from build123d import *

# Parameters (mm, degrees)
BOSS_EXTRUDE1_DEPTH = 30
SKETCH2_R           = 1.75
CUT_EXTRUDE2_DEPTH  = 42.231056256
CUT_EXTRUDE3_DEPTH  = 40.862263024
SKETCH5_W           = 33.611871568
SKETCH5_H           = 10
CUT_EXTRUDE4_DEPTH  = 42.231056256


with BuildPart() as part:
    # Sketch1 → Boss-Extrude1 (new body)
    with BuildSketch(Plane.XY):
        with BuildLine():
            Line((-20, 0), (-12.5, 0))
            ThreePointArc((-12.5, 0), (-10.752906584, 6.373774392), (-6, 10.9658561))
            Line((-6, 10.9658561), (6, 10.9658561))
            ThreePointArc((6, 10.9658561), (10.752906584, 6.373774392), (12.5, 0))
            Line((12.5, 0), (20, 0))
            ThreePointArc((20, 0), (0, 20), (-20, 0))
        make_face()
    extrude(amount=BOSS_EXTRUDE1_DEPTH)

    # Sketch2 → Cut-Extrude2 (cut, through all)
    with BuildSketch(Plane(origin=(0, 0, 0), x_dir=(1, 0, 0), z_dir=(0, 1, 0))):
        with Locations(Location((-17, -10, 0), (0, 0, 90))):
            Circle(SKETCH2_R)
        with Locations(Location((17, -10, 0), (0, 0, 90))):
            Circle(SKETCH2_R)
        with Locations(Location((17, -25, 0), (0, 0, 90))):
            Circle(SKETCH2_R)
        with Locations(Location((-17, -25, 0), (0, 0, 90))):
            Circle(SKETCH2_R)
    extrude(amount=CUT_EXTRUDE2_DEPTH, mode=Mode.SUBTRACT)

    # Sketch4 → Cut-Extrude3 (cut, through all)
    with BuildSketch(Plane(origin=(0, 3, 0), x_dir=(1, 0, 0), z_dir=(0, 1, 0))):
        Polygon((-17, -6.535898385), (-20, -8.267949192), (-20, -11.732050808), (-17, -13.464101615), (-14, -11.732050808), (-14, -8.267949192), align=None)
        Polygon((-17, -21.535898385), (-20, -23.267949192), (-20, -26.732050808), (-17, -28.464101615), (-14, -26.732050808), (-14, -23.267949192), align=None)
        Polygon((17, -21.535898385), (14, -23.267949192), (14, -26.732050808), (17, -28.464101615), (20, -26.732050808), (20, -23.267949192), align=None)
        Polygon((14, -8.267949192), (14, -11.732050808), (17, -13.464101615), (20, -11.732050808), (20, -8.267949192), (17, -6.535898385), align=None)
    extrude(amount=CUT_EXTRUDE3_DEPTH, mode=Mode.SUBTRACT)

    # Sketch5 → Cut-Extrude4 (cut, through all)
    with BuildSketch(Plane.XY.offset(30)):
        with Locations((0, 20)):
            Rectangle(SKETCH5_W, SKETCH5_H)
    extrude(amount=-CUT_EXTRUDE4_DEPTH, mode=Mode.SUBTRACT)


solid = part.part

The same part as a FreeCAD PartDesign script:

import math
import FreeCAD as App
import Part
import Sketcher

V = App.Vector
Q = App.Units.Quantity

doc = App.newDocument("Part")
body = doc.addObject("PartDesign::Body", "Body")

sketch1 = body.newObject("Sketcher::SketchObject", "Sketch")
sketch1.AttachmentSupport = (doc.getObject("XY_Plane"), [""])
sketch1.MapMode = "FlatFace"
sketch1.addGeometry(Part.LineSegment(V(-20, 0, 0), V(-12, 0, 0)), False)
sketch1.addGeometry(Part.ArcOfCircle(Part.Circle(V(0, 0, 0), V(0, 0, 1), 12), math.radians(119), math.radians(180)), False)
sketch1.addGeometry(Part.LineSegment(V(-6, 11, 0), V(6, 11, 0)), False)
sketch1.addGeometry(Part.ArcOfCircle(Part.Circle(V(0, 0, 0), V(0, 0, 1), 12), math.radians(0), math.radians(61)), False)
sketch1.addGeometry(Part.LineSegment(V(12, 0, 0), V(20, 0, 0)), False)
sketch1.addGeometry(Part.ArcOfCircle(Part.Circle(V(0, 0, 0), V(0, 0, 1), 20), math.radians(0), math.radians(180)), False)
sketch1.addConstraint(Sketcher.Constraint("Coincident", 0, 2, 1, 2))
sketch1.addConstraint(Sketcher.Constraint("Coincident", 1, 1, 2, 1))
sketch1.addConstraint(Sketcher.Constraint("Coincident", 2, 2, 3, 2))
sketch1.addConstraint(Sketcher.Constraint("Coincident", 3, 1, 4, 1))
sketch1.addConstraint(Sketcher.Constraint("Coincident", 4, 2, 5, 1))
sketch1.addConstraint(Sketcher.Constraint("Coincident", 5, 2, 0, 1))
sketch1.addConstraint(Sketcher.Constraint("Horizontal", 0))
sketch1.addConstraint(Sketcher.Constraint("Horizontal", 2))
sketch1.addConstraint(Sketcher.Constraint("Horizontal", 4))
sketch1.addConstraint(Sketcher.Constraint("Coincident", 1, 3, -1, 1))
sketch1.addConstraint(Sketcher.Constraint("Coincident", 3, 3, -1, 1))
sketch1.addConstraint(Sketcher.Constraint("Coincident", 5, 3, -1, 1))
sketch1.addConstraint(Sketcher.Constraint("Equal", 1, 3))
sketch1.addConstraint(Sketcher.Constraint("PointOnObject", 0, 2, -1))
sketch1.addConstraint(Sketcher.Constraint("PointOnObject", 3, 1, -1))
sketch1.addConstraint(Sketcher.Constraint("Radius", 5, Q("20 mm")))
sketch1.addConstraint(Sketcher.Constraint("Radius", 1, Q("12.5 mm")))
sketch1.addConstraint(Sketcher.Constraint("DistanceX", 2, 1, 2, 2, Q("12 mm")))
pad1 = body.newObject("PartDesign::Pad", "Pad")
pad1.Profile = sketch1
pad1.Length = 30

sketch2 = body.newObject("Sketcher::SketchObject", "Sketch001")
sketch2.AttachmentSupport = (doc.getObject("XZ_Plane"), [""])
sketch2.MapMode = "FlatFace"
sketch2.addGeometry(Part.Circle(V(-17, 10, 0), V(0, 0, 1), 1.8), False)
sketch2.addGeometry(Part.Circle(V(17, 10, 0), V(0, 0, 1), 1.8), False)
sketch2.addGeometry(Part.Circle(V(17, 25, 0), V(0, 0, 1), 1.8), False)
sketch2.addGeometry(Part.Circle(V(-17, 25, 0), V(0, 0, 1), 1.8), False)
sketch2.addConstraint(Sketcher.Constraint("Equal", 0, 1))
sketch2.addConstraint(Sketcher.Constraint("Equal", 1, 2))
sketch2.addConstraint(Sketcher.Constraint("Equal", 2, 3))
sketch2.addConstraint(Sketcher.Constraint("Symmetric", 0, 3, 1, 3, -2))
sketch2.addConstraint(Sketcher.Constraint("Symmetric", 2, 3, 3, 3, -2))
sketch2.addConstraint(Sketcher.Constraint("Vertical", 1, 3, 2, 3))
sketch2.addConstraint(Sketcher.Constraint("Diameter", 0, Q("3.5 mm")))
sketch2.addConstraint(Sketcher.Constraint("DistanceX", 0, 3, -1, 1, Q("17 mm")))
sketch2.addConstraint(Sketcher.Constraint("DistanceY", -1, 1, 0, 3, Q("10 mm")))
sketch2.addConstraint(Sketcher.Constraint("DistanceY", -1, 1, 2, 3, Q("25 mm")))
pocket1 = body.newObject("PartDesign::Pocket", "Pocket")
pocket1.Profile = sketch2
pocket1.Type = "ThroughAll"

sketch3 = body.newObject("Sketcher::SketchObject", "Sketch002")
sketch3.AttachmentSupport = (doc.getObject("XZ_Plane"), [""])
sketch3.MapMode = "FlatFace"
sketch3.AttachmentOffset = App.Placement(V(0, 0, -3), App.Rotation())
sketch3.addGeometry(Part.LineSegment(V(-17, 6.5, 0), V(-20, 8.3, 0)), False)
sketch3.addGeometry(Part.LineSegment(V(-20, 8.3, 0), V(-20, 11.7, 0)), False)
sketch3.addGeometry(Part.LineSegment(V(-20, 11.7, 0), V(-17, 13.5, 0)), False)
sketch3.addGeometry(Part.LineSegment(V(-17, 13.5, 0), V(-14, 11.7, 0)), False)
sketch3.addGeometry(Part.LineSegment(V(-14, 11.7, 0), V(-14, 8.3, 0)), False)
sketch3.addGeometry(Part.LineSegment(V(-14, 8.3, 0), V(-17, 6.5, 0)), False)
sketch3.addGeometry(Part.LineSegment(V(-17, 21.5, 0), V(-20, 23.3, 0)), False)
sketch3.addGeometry(Part.LineSegment(V(-20, 23.3, 0), V(-20, 26.7, 0)), False)
sketch3.addGeometry(Part.LineSegment(V(-20, 26.7, 0), V(-17, 28.5, 0)), False)
sketch3.addGeometry(Part.LineSegment(V(-17, 28.5, 0), V(-14, 26.7, 0)), False)
sketch3.addGeometry(Part.LineSegment(V(-14, 26.7, 0), V(-14, 23.3, 0)), False)
sketch3.addGeometry(Part.LineSegment(V(-14, 23.3, 0), V(-17, 21.5, 0)), False)
sketch3.addGeometry(Part.LineSegment(V(17, 21.5, 0), V(14, 23.3, 0)), False)
sketch3.addGeometry(Part.LineSegment(V(14, 23.3, 0), V(14, 26.7, 0)), False)
sketch3.addGeometry(Part.LineSegment(V(14, 26.7, 0), V(17, 28.5, 0)), False)
sketch3.addGeometry(Part.LineSegment(V(17, 28.5, 0), V(20, 26.7, 0)), False)
sketch3.addGeometry(Part.LineSegment(V(20, 26.7, 0), V(20, 23.3, 0)), False)
sketch3.addGeometry(Part.LineSegment(V(20, 23.3, 0), V(17, 21.5, 0)), False)
sketch3.addGeometry(Part.LineSegment(V(14, 8.3, 0), V(14, 11.7, 0)), False)
sketch3.addGeometry(Part.LineSegment(V(14, 11.7, 0), V(17, 13.5, 0)), False)
sketch3.addGeometry(Part.LineSegment(V(17, 13.5, 0), V(20, 11.7, 0)), False)
sketch3.addGeometry(Part.LineSegment(V(20, 11.7, 0), V(20, 8.3, 0)), False)
sketch3.addGeometry(Part.LineSegment(V(20, 8.3, 0), V(17, 6.5, 0)), False)
sketch3.addGeometry(Part.LineSegment(V(17, 6.5, 0), V(14, 8.3, 0)), False)
sketch3.addConstraint(Sketcher.Constraint("Coincident", 0, 2, 1, 1))
sketch3.addConstraint(Sketcher.Constraint("Coincident", 1, 2, 2, 1))
sketch3.addConstraint(Sketcher.Constraint("Coincident", 2, 2, 3, 1))
sketch3.addConstraint(Sketcher.Constraint("Coincident", 3, 2, 4, 1))
sketch3.addConstraint(Sketcher.Constraint("Coincident", 4, 2, 5, 1))
sketch3.addConstraint(Sketcher.Constraint("Coincident", 5, 2, 0, 1))
sketch3.addConstraint(Sketcher.Constraint("Coincident", 6, 2, 7, 1))
sketch3.addConstraint(Sketcher.Constraint("Coincident", 7, 2, 8, 1))
sketch3.addConstraint(Sketcher.Constraint("Coincident", 8, 2, 9, 1))
sketch3.addConstraint(Sketcher.Constraint("Coincident", 9, 2, 10, 1))
sketch3.addConstraint(Sketcher.Constraint("Coincident", 10, 2, 11, 1))
sketch3.addConstraint(Sketcher.Constraint("Coincident", 11, 2, 6, 1))
sketch3.addConstraint(Sketcher.Constraint("Coincident", 12, 2, 13, 1))
sketch3.addConstraint(Sketcher.Constraint("Coincident", 13, 2, 14, 1))
sketch3.addConstraint(Sketcher.Constraint("Coincident", 14, 2, 15, 1))
sketch3.addConstraint(Sketcher.Constraint("Coincident", 15, 2, 16, 1))
sketch3.addConstraint(Sketcher.Constraint("Coincident", 16, 2, 17, 1))
sketch3.addConstraint(Sketcher.Constraint("Coincident", 17, 2, 12, 1))
sketch3.addConstraint(Sketcher.Constraint("Coincident", 18, 2, 19, 1))
sketch3.addConstraint(Sketcher.Constraint("Coincident", 19, 2, 20, 1))
sketch3.addConstraint(Sketcher.Constraint("Coincident", 20, 2, 21, 1))
sketch3.addConstraint(Sketcher.Constraint("Coincident", 21, 2, 22, 1))
sketch3.addConstraint(Sketcher.Constraint("Coincident", 22, 2, 23, 1))
sketch3.addConstraint(Sketcher.Constraint("Coincident", 23, 2, 18, 1))
sketch3.addConstraint(Sketcher.Constraint("Vertical", 1))
sketch3.addConstraint(Sketcher.Constraint("Vertical", 4))
sketch3.addConstraint(Sketcher.Constraint("Vertical", 7))
sketch3.addConstraint(Sketcher.Constraint("Vertical", 10))
sketch3.addConstraint(Sketcher.Constraint("Vertical", 13))
sketch3.addConstraint(Sketcher.Constraint("Vertical", 16))
sketch3.addConstraint(Sketcher.Constraint("Vertical", 18))
sketch3.addConstraint(Sketcher.Constraint("Vertical", 21))
sketch3.addConstraint(Sketcher.Constraint("Symmetric", 10, 2, 12, 2, -2))
sketch3.addConstraint(Sketcher.Constraint("Symmetric", 8, 2, 14, 2, -2))
sketch3.addConstraint(Sketcher.Constraint("Symmetric", 7, 2, 15, 2, -2))
sketch3.addConstraint(Sketcher.Constraint("Symmetric", 11, 2, 17, 2, -2))
sketch3.addConstraint(Sketcher.Constraint("Symmetric", 3, 2, 18, 2, -2))
sketch3.addConstraint(Sketcher.Constraint("Symmetric", 2, 2, 19, 2, -2))
sketch3.addConstraint(Sketcher.Constraint("Symmetric", 1, 2, 20, 2, -2))
sketch3.addConstraint(Sketcher.Constraint("Symmetric", 5, 2, 22, 2, -2))
sketch3.addConstraint(Sketcher.Constraint("Parallel", 0, 3))
sketch3.addConstraint(Sketcher.Constraint("Parallel", 2, 5))
sketch3.addConstraint(Sketcher.Constraint("Parallel", 3, 6))
sketch3.addConstraint(Sketcher.Constraint("Parallel", 5, 8))
sketch3.addConstraint(Sketcher.Constraint("Parallel", 6, 9))
sketch3.addConstraint(Sketcher.Constraint("Parallel", 8, 11))
sketch3.addConstraint(Sketcher.Constraint("Parallel", 9, 12))
sketch3.addConstraint(Sketcher.Constraint("Parallel", 11, 14))
sketch3.addConstraint(Sketcher.Constraint("Parallel", 14, 17))
sketch3.addConstraint(Sketcher.Constraint("Parallel", 19, 22))
sketch3.addConstraint(Sketcher.Constraint("Parallel", 20, 23))
sketch3.addConstraint(Sketcher.Constraint("Horizontal", 1, 2, 3, 2))
sketch3.addConstraint(Sketcher.Constraint("Horizontal", 0, 2, 4, 2))
sketch3.addConstraint(Sketcher.Constraint("Horizontal", 7, 2, 9, 2))
sketch3.addConstraint(Sketcher.Constraint("Horizontal", 6, 2, 10, 2))
sketch3.addConstraint(Sketcher.Constraint("Vertical", 1, 2, 6, 2))
sketch3.addConstraint(Sketcher.Constraint("Vertical", 5, 2, 8, 2))
sketch3.addConstraint(Sketcher.Constraint("Equal", 4, 7))
sketch3.addConstraint(Sketcher.Constraint("Angle", 0, Q("150 deg")))
sketch3.addConstraint(Sketcher.Constraint("DistanceX", 0, 2, -1, 1, Q("20 mm")))
sketch3.addConstraint(Sketcher.Constraint("DistanceX", 2, 2, -1, 1, Q("17 mm")))
sketch3.addConstraint(Sketcher.Constraint("DistanceY", 0, 2, 6, 2, Q("15 mm")))
sketch3.addConstraint(Sketcher.Constraint("DistanceY", 1, 1, 1, 2, Q("3.464102 mm")))
sketch3.addConstraint(Sketcher.Constraint("DistanceY", -1, 1, 2, 2, Q("13.464102 mm")))
pocket2 = body.newObject("PartDesign::Pocket", "Pocket001")
pocket2.Profile = sketch3
pocket2.Type = "ThroughAll"

sketch4 = body.newObject("Sketcher::SketchObject", "Sketch003")
sketch4.AttachmentSupport = (doc.getObject("XY_Plane"), [""])
sketch4.MapMode = "FlatFace"
sketch4.AttachmentOffset = App.Placement(V(0, 0, 30), App.Rotation())
sketch4.addGeometry(Part.LineSegment(V(-17, 25, 0), V(-17, 15, 0)), False)
sketch4.addGeometry(Part.LineSegment(V(-17, 15, 0), V(17, 15, 0)), False)
sketch4.addGeometry(Part.LineSegment(V(17, 15, 0), V(17, 25, 0)), False)
sketch4.addGeometry(Part.LineSegment(V(17, 25, 0), V(-17, 25, 0)), False)
sketch4.addConstraint(Sketcher.Constraint("Coincident", 0, 2, 1, 1))
sketch4.addConstraint(Sketcher.Constraint("Coincident", 1, 2, 2, 1))
sketch4.addConstraint(Sketcher.Constraint("Coincident", 2, 2, 3, 1))
sketch4.addConstraint(Sketcher.Constraint("Coincident", 3, 2, 0, 1))
sketch4.addConstraint(Sketcher.Constraint("Vertical", 0))
sketch4.addConstraint(Sketcher.Constraint("Horizontal", 1))
sketch4.addConstraint(Sketcher.Constraint("Vertical", 2))
sketch4.addConstraint(Sketcher.Constraint("Horizontal", 3))
sketch4.addConstraint(Sketcher.Constraint("DistanceY", 0, 2, 0, 1, Q("10 mm")))
sketch4.addConstraint(Sketcher.Constraint("DistanceY", -1, 1, 0, 2, Q("15 mm")))
sketch4.addConstraint(Sketcher.Constraint("DistanceX", 1, 1, 1, 2, Q("33.611872 mm")))
sketch4.addConstraint(Sketcher.Constraint("DistanceX", 0, 2, -1, 1, Q("16.805936 mm")))
pocket3 = body.newObject("PartDesign::Pocket", "Pocket002")
pocket3.Profile = sketch4
pocket3.Type = "ThroughAll"

doc.recompute()
